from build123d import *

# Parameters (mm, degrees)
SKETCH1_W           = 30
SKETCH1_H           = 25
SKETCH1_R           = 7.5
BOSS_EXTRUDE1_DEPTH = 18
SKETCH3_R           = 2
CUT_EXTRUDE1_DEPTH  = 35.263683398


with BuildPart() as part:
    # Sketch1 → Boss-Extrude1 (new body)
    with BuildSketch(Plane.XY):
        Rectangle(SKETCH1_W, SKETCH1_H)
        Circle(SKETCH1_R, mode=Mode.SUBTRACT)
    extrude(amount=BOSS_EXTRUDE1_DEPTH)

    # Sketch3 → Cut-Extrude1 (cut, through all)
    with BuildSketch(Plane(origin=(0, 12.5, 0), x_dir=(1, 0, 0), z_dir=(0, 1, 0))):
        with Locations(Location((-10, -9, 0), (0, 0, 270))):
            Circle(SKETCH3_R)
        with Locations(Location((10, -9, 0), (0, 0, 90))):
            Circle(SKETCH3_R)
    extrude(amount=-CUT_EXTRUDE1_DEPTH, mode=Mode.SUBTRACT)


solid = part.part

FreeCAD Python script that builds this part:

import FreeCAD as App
import Part
import Sketcher

doc = App.newDocument("Part")
body = doc.addObject("PartDesign::Body", "Body")

sketch1 = body.newObject("Sketcher::SketchObject", "Sketch")
sketch1.AttachmentSupport = (doc.getObject("XY_Plane"), [""])
sketch1.MapMode = "FlatFace"
sketch1.addGeometry([
    Part.LineSegment(App.Vector(-15, 12, 0), App.Vector(-15, -12, 0)),
    Part.LineSegment(App.Vector(-15, -12, 0), App.Vector(15, -12, 0)),
    Part.LineSegment(App.Vector(15, -12, 0), App.Vector(15, 12, 0)),
    Part.LineSegment(App.Vector(15, 12, 0), App.Vector(-15, 12, 0)),
    Part.Circle(App.Vector(0, 0, 0), App.Vector(0, 0, 1), 8),
], False)
sketch1.addConstraint([
    Sketcher.Constraint("Coincident", 0, 2, 1, 1),
    Sketcher.Constraint("Coincident", 1, 2, 2, 1),
    Sketcher.Constraint("Coincident", 2, 2, 3, 1),
    Sketcher.Constraint("Coincident", 3, 2, 0, 1),
    Sketcher.Constraint("Vertical", 0),
    Sketcher.Constraint("Horizontal", 1),
    Sketcher.Constraint("Vertical", 2),
    Sketcher.Constraint("Horizontal", 3),
    Sketcher.Constraint("Coincident", 4, 3, -1, 1),
    Sketcher.Constraint("Symmetric", 0, 2, 2, 2, -1, 1),
    Sketcher.Constraint("Diameter", 4, 15.0),
    Sketcher.Constraint("DistanceX", 1, 1, 1, 2, 30.0),
    Sketcher.Constraint("DistanceY", 0, 2, 0, 1, 25.0),
])
pad1 = body.newObject("PartDesign::Pad", "Pad")
pad1.Profile = sketch1
pad1.Length = 18

sketch2 = body.newObject("Sketcher::SketchObject", "Sketch001")
sketch2.AttachmentSupport = (doc.getObject("XZ_Plane"), [""])
sketch2.MapMode = "FlatFace"
sketch2.AttachmentOffset = App.Placement(App.Vector(0, 0, -12.5), App.Rotation())
sketch2.addGeometry([
    Part.Circle(App.Vector(-10, 9, 0), App.Vector(0, 0, 1), 2),
    Part.Circle(App.Vector(10, 9, 0), App.Vector(0, 0, 1), 2),
], False)
sketch2.addConstraint([
    Sketcher.Constraint("Equal", 0, 1),
    Sketcher.Constraint("Symmetric", 0, 3, 1, 3, -2),
    Sketcher.Constraint("Diameter", 0, 4.0),
    Sketcher.Constraint("DistanceX", 0, 3, -1, 1, 10.0),
    Sketcher.Constraint("DistanceY", -1, 1, 0, 3, 9.0),
])
pocket1 = body.newObject("PartDesign::Pocket", "Pocket")
pocket1.Profile = sketch2
pocket1.Type = "ThroughAll"
pocket1.Reversed = True

doc.recompute()
